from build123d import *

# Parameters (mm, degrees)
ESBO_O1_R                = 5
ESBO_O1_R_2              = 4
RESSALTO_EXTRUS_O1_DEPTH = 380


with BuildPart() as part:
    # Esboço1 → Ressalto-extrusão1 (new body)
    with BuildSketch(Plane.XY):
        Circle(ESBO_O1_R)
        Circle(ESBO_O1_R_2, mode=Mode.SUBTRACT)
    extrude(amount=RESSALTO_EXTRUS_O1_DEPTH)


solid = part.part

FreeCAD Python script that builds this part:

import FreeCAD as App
import Part
import Sketcher

V = App.Vector
Q = App.Units.Quantity

doc = App.newDocument("Part")
body = doc.addObject("PartDesign::Body", "Body")

sketch1 = body.newObject("Sketcher::SketchObject", "Sketch")
sketch1.AttachmentSupport = (doc.getObject("XY_Plane"), [""])
sketch1.MapMode = "FlatFace"
sketch1.addGeometry([
    Part.Circle(V(0, 0, 0), V(0, 0, 1), 5),
    Part.Circle(V(0, 0, 0), V(0, 0, 1), 4),
], False)
sketch1.addConstraint([
    Sketcher.Constraint("Coincident", 0, 3, -1, 1),
    Sketcher.Constraint("Coincident", 1, 3, -1, 1),
    Sketcher.Constraint("Diameter", 0, Q("10 mm")),
    Sketcher.Constraint("Diameter", 1, Q("8 mm")),
])
pad1 = body.newObject("PartDesign::Pad", "Pad")
pad1.Profile = sketch1
pad1.Length = 380

doc.recompute()
